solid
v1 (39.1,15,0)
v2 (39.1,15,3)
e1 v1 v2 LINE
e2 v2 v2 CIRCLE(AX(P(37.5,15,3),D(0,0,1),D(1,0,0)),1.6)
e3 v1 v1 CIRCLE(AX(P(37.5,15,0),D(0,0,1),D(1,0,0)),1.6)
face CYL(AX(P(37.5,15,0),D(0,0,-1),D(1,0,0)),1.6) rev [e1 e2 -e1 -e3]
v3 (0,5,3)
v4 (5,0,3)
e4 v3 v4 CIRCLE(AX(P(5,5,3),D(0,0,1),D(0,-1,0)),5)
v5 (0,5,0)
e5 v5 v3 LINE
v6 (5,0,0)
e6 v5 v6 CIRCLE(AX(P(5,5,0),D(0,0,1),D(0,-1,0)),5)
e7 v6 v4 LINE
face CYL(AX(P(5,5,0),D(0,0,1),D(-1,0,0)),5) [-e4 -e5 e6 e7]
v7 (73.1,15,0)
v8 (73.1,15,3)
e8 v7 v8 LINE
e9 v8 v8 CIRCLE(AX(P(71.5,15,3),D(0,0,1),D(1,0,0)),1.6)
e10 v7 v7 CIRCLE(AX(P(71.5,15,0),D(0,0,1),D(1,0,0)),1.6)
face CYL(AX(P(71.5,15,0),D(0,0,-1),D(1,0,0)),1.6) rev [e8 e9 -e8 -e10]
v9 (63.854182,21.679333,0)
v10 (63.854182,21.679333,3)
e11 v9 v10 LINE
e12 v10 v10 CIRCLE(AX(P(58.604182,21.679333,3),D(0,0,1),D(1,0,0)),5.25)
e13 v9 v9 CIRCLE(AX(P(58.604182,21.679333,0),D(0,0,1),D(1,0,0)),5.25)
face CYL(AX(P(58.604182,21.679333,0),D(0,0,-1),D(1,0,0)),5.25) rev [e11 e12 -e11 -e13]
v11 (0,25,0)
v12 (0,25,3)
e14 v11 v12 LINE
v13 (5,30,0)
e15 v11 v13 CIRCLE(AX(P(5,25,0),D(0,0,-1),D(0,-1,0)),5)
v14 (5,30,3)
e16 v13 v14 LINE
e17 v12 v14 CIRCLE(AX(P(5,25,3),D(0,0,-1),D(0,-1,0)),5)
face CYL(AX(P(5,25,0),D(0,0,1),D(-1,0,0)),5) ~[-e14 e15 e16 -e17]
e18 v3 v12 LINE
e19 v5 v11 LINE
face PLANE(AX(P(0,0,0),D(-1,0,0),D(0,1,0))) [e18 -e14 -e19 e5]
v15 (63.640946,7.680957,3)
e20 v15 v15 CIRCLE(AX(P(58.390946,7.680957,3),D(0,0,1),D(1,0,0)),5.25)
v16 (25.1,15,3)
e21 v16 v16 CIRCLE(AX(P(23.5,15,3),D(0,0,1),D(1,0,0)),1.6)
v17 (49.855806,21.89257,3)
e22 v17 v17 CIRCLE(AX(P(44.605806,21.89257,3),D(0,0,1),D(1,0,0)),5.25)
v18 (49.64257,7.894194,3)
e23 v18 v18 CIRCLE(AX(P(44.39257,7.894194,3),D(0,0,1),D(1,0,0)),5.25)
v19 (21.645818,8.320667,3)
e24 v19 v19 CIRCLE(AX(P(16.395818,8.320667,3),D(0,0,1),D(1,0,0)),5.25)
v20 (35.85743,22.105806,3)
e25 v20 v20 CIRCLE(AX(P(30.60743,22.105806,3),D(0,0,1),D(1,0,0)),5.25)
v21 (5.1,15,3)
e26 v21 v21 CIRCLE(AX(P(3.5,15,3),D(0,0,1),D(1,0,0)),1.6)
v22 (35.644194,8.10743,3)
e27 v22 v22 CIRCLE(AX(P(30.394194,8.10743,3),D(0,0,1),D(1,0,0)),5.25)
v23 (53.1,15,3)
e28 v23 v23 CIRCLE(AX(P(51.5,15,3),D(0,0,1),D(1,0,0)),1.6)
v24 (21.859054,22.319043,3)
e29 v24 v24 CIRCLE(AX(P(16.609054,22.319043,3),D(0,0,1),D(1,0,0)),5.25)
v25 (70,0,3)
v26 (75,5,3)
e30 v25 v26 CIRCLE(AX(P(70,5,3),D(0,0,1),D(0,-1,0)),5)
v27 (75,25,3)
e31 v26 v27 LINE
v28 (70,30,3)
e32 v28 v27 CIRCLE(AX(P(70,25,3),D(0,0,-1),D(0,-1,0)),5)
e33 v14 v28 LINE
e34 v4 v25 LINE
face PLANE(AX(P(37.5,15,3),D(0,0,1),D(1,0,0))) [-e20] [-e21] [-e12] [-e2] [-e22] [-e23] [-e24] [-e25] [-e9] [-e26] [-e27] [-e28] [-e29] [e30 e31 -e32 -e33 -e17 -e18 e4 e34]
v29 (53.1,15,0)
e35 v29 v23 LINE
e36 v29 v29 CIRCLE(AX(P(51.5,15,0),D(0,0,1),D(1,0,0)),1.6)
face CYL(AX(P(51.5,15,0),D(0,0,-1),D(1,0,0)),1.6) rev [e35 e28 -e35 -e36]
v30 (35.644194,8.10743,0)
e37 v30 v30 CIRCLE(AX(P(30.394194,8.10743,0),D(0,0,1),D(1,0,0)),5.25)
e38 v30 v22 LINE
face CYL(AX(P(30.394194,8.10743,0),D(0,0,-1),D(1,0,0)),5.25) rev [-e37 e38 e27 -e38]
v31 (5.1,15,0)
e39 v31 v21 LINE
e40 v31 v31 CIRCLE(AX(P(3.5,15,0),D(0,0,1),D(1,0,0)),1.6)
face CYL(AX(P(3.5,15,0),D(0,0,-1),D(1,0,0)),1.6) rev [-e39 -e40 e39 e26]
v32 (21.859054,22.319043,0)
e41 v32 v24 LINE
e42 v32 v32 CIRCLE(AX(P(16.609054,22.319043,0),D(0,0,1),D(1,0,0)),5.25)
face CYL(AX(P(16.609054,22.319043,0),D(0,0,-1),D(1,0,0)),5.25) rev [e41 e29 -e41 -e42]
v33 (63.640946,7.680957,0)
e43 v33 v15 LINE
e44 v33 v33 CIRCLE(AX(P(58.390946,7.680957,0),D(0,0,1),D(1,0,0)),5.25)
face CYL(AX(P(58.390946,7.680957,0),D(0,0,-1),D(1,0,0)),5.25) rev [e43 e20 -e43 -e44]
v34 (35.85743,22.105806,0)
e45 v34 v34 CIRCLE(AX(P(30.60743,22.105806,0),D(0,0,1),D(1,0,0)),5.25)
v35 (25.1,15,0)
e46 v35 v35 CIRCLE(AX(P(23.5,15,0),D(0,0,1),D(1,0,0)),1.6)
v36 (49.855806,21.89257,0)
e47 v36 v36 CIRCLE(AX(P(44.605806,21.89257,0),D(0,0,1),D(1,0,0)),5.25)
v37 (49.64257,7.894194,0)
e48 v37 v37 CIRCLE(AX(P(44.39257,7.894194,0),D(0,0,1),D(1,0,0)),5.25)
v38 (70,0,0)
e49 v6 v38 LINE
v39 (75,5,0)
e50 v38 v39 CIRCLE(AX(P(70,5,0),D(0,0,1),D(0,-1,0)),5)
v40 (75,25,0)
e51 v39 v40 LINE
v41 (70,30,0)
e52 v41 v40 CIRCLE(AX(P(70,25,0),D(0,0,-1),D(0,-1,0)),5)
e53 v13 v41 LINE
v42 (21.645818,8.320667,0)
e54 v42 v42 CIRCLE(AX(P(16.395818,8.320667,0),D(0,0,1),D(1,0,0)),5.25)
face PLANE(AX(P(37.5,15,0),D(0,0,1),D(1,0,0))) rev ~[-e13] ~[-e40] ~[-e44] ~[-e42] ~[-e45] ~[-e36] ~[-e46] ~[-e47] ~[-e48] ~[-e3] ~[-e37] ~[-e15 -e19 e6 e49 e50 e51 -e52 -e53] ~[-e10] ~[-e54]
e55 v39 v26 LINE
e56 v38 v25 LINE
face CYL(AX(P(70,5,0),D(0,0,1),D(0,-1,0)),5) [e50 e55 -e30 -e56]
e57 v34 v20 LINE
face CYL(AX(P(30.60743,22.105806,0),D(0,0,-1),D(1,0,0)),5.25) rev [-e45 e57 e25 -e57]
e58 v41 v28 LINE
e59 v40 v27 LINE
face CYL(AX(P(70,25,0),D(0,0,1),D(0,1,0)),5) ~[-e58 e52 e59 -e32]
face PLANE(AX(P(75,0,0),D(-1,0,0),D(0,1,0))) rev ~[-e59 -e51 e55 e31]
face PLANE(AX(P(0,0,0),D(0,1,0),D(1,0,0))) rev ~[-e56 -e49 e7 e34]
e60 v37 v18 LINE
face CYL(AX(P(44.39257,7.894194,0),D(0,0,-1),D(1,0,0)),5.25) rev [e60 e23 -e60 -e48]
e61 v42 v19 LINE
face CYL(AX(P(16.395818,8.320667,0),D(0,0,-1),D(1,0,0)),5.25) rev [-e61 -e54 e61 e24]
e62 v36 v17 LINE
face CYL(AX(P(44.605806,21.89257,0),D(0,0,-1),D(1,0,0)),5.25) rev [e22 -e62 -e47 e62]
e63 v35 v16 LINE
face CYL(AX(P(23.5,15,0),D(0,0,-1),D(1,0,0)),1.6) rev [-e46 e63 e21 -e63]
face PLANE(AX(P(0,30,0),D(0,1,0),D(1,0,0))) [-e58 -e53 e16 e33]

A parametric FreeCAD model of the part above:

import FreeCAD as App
import Part
import Sketcher
from FreeCAD import Vector


def edges_at(feature, points):
    """Names of the edges that pass closest to the given points."""
    edges = feature.Shape.Edges
    near = lambda p: min(range(len(edges)), key=lambda i: edges[i].distToShape(Part.Vertex(*p))[0])
    return sorted({f"Edge{near(p) + 1}" for p in points})


def add_polygon(sketch, points):
    """Adds a closed chain of lines whose ends are joined by coincident constraints."""
    first, n = sketch.GeometryCount, len(points)
    for a, b in zip(points, points[1:] + points[:1]):
        sketch.addGeometry(Part.LineSegment(App.Vector(*a, 0), App.Vector(*b, 0)), False)
    for i in range(n):
        sketch.addConstraint(Sketcher.Constraint("Coincident", first + i, 2, first + (i + 1) % n, 1))

doc = App.newDocument("Part")
params = doc.addObject("Spreadsheet::Sheet", "Params")
for row, (alias, value) in enumerate([
    ("sketch1_diameter", "10.5 mm"),
    ("sketch1_diameter2", "3.2 mm"),
    ("sketch1_width", "75 mm"),
    ("sketch1_height", "30 mm"),
    ("pad1_length", "3 mm"),
    ("fillet_radius", "5 mm"),
], start=1):
    params.set(f"A{row}", alias)
    params.set(f"B{row}", "=" + value)
    params.setAlias(f"B{row}", alias)

body = doc.addObject("PartDesign::Body", "Body")

# Sketch on XY plane
sketch1 = doc.addObject("Sketcher::SketchObject", "Sketch")
body.addObject(sketch1)
sketch1.AttachmentSupport = (doc.XY_Plane, [""])
sketch1.MapMode = "FlatFace"
add_polygon(sketch1, [(0, 30), (0, 0), (75, 0), (75, 30)])  # lines 0-3
sketch1.addGeometry(Part.Circle(Vector(16.4, 8.3, 0), Vector(0, 0, 1), 5.2), False)  # 4
sketch1.addGeometry(Part.Circle(Vector(30.4, 8.1, 0), Vector(0, 0, 1), 5.2), False)  # 5
sketch1.addGeometry(Part.Circle(Vector(44.4, 7.9, 0), Vector(0, 0, 1), 5.2), False)  # 6
sketch1.addGeometry(Part.Circle(Vector(58.4, 7.7, 0), Vector(0, 0, 1), 5.2), False)  # 7
sketch1.addGeometry(Part.Circle(Vector(3.5, 15, 0), Vector(0, 0, 1), 1.6), False)  # 8
sketch1.addGeometry(Part.Circle(Vector(23.5, 15, 0), Vector(0, 0, 1), 1.6), False)  # 9
sketch1.addGeometry(Part.Circle(Vector(16.6, 22.3, 0), Vector(0, 0, 1), 5.2), False)  # 10
sketch1.addGeometry(Part.Circle(Vector(30.6, 22.1, 0), Vector(0, 0, 1), 5.2), False)  # 11
sketch1.addGeometry(Part.Circle(Vector(37.5, 15, 0), Vector(0, 0, 1), 1.6), False)  # 12
sketch1.addGeometry(Part.Circle(Vector(51.5, 15, 0), Vector(0, 0, 1), 1.6), False)  # 13
sketch1.addGeometry(Part.Circle(Vector(71.5, 15, 0), Vector(0, 0, 1), 1.6), False)  # 14
sketch1.addGeometry(Part.Circle(Vector(44.6, 21.9, 0), Vector(0, 0, 1), 5.2), False)  # 15
sketch1.addGeometry(Part.Circle(Vector(58.6, 21.7, 0), Vector(0, 0, 1), 5.2), False)  # 16
sketch1.addConstraint(Sketcher.Constraint("Vertical", 0))
sketch1.addConstraint(Sketcher.Constraint("Horizontal", 1))
sketch1.addConstraint(Sketcher.Constraint("Vertical", 2))
sketch1.addConstraint(Sketcher.Constraint("Horizontal", 3))
sketch1.addConstraint(Sketcher.Constraint("Coincident", 0, 2, -1, 1))
sketch1.addConstraint(Sketcher.Constraint("Equal", 4, 5))
sketch1.addConstraint(Sketcher.Constraint("Equal", 5, 6))
sketch1.addConstraint(Sketcher.Constraint("Equal", 6, 7))
sketch1.addConstraint(Sketcher.Constraint("Equal", 8, 9))
sketch1.addConstraint(Sketcher.Constraint("Equal", 7, 10))
sketch1.addConstraint(Sketcher.Constraint("Equal", 10, 11))
sketch1.addConstraint(Sketcher.Constraint("Equal", 9, 12))
sketch1.addConstraint(Sketcher.Constraint("Equal", 12, 13))
sketch1.addConstraint(Sketcher.Constraint("Equal", 13, 14))
sketch1.addConstraint(Sketcher.Constraint("Equal", 11, 15))
sketch1.addConstraint(Sketcher.Constraint("Equal", 15, 16))
sketch1.addConstraint(Sketcher.Constraint("Horizontal", 8, 3, 9, 3))
sketch1.addConstraint(Sketcher.Constraint("Horizontal", 9, 3, 12, 3))
sketch1.addConstraint(Sketcher.Constraint("Horizontal", 12, 3, 13, 3))
sketch1.addConstraint(Sketcher.Constraint("Horizontal", 13, 3, 14, 3))
sketch1.addConstraint(Sketcher.Constraint("Diameter", 4, 10.5))
sketch1.addConstraint(Sketcher.Constraint("Diameter", 8, 3.2))
sketch1.addConstraint(Sketcher.Constraint("DistanceX", 1, 1, 1, 2, 75.0))
sketch1.addConstraint(Sketcher.Constraint("DistanceY", 0, 2, 0, 1, 30.0))
sketch1.addConstraint(Sketcher.Constraint("DistanceY", -1, 1, 8, 3, 15.0))
sketch1.addConstraint(Sketcher.Constraint("DistanceX", 8, 3, 9, 3, 20.0))
sketch1.addConstraint(Sketcher.Constraint("DistanceX", 9, 3, 12, 3, 14.0))
sketch1.addConstraint(Sketcher.Constraint("DistanceX", 12, 3, 13, 3, 14.0))
sketch1.addConstraint(Sketcher.Constraint("DistanceX", 13, 3, 14, 3, 20.0))
sketch1.addConstraint(Sketcher.Constraint("DistanceX", -1, 1, 8, 3, 3.5))
sketch1.addConstraint(Sketcher.Constraint("DistanceY", -1, 1, 5, 3, 8.10743))
sketch1.addConstraint(Sketcher.Constraint("DistanceX", -1, 1, 6, 3, 44.39257))
sketch1.addConstraint(Sketcher.Constraint("DistanceX", -1, 1, 11, 3, 30.60743))
sketch1.addConstraint(Sketcher.Constraint("DistanceY", -1, 1, 15, 3, 21.89257))
sketch1.addConstraint(Sketcher.Constraint("DistanceY", 7, 3, 4, 3, 0.63971))
sketch1.addConstraint(Sketcher.Constraint("DistanceX", 10, 3, 5, 3, 13.78514))
sketch1.addConstraint(Sketcher.Constraint("DistanceY", 6, 3, 10, 3, 14.424849))
sketch1.addConstraint(Sketcher.Constraint("DistanceY", 4, 3, 11, 3, 13.785139))
sketch1.addConstraint(Sketcher.Constraint("DistanceY", 6, 3, 16, 3, 13.785139))
sketch1.addConstraint(Sketcher.Constraint("DistanceX", -1, 1, 4, 3, 16.395818))
sketch1.addConstraint(Sketcher.Constraint("DistanceY", -1, 1, 4, 3, 8.320667))
sketch1.addConstraint(Sketcher.Constraint("DistanceX", -1, 1, 5, 3, 30.394194))
sketch1.addConstraint(Sketcher.Constraint("DistanceY", -1, 1, 6, 3, 7.894194))
sketch1.addConstraint(Sketcher.Constraint("DistanceX", -1, 1, 7, 3, 58.390946))
sketch1.addConstraint(Sketcher.Constraint("DistanceX", -1, 1, 15, 3, 44.605806))
sketch1.addConstraint(Sketcher.Constraint("DistanceX", -1, 1, 16, 3, 58.604182))
sketch1.setExpression("Constraints[24]", "Params.sketch1_diameter")
sketch1.setExpression("Constraints[25]", "Params.sketch1_diameter2")
sketch1.setExpression("Constraints[26]", "Params.sketch1_width")
sketch1.setExpression("Constraints[27]", "Params.sketch1_height")
pad1 = doc.addObject("PartDesign::Pad", "Pad")
body.addObject(pad1)
pad1.Profile = sketch1
pad1.setExpression("Length", "Params.pad1_length")
doc.recompute()

fillet = doc.addObject("PartDesign::Fillet", "Fillet")
body.addObject(fillet)
fillet.Base = (pad1, edges_at(pad1, [
    (0, 0, 1.5),
    (75, 0, 1.5),
    (75, 30, 1.5),
    (0, 30, 1.5),
]))
fillet.setExpression("Radius", "Params.fillet_radius")

doc.recompute()
